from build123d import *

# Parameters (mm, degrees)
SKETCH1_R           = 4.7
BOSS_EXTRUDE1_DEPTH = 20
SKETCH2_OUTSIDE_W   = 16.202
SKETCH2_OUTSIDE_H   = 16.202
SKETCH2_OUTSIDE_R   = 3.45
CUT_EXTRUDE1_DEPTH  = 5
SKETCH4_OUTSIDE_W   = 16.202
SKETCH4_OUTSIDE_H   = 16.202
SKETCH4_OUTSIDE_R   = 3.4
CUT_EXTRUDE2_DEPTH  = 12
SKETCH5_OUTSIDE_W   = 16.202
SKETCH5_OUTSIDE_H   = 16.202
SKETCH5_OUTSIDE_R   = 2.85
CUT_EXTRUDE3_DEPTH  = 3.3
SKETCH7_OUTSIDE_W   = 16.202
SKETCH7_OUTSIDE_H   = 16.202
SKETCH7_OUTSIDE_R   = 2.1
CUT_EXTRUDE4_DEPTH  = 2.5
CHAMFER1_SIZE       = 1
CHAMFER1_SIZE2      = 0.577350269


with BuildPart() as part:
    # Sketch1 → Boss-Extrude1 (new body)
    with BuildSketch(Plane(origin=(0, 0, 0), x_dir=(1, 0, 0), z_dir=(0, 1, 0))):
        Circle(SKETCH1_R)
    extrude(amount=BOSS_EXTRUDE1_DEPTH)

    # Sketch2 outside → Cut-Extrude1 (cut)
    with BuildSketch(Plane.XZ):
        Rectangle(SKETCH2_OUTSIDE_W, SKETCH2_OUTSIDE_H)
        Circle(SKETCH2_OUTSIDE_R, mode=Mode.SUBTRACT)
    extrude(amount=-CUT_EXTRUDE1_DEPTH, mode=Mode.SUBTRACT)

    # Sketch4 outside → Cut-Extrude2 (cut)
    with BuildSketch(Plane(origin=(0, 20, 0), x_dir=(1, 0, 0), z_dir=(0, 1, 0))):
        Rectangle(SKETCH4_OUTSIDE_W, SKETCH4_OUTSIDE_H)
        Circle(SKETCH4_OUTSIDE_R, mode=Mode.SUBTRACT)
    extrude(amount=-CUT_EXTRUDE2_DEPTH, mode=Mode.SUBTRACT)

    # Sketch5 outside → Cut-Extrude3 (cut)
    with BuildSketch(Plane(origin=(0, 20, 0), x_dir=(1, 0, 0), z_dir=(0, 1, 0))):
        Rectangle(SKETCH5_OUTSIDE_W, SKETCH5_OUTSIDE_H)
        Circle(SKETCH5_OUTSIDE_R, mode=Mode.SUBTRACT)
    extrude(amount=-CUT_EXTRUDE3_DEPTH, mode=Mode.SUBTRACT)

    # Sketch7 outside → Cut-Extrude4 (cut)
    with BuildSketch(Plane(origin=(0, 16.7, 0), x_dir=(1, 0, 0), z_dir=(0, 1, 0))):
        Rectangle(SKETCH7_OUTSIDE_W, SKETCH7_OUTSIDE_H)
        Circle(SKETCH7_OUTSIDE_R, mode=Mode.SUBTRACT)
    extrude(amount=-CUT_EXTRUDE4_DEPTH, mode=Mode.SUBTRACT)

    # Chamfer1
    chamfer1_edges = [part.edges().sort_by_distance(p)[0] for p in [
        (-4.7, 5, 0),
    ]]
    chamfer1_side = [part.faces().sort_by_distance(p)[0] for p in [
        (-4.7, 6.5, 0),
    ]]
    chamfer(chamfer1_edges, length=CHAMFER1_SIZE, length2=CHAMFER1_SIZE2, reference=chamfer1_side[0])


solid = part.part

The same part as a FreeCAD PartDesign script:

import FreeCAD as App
import Part
import Sketcher
from FreeCAD import Vector
Q = App.Units.Quantity


def edges_at(feature, points):
    """Names of the edges that pass closest to the given points."""
    edges = feature.Shape.Edges
    near = lambda p: min(range(len(edges)), key=lambda i: edges[i].distToShape(Part.Vertex(*p))[0])
    return sorted({f"Edge{near(p) + 1}" for p in points})

doc = App.newDocument("Part")
body = doc.addObject("PartDesign::Body", "Body")

sketch1 = body.newObject("Sketcher::SketchObject", "Sketch")
sketch1.AttachmentSupport = (doc.getObject("XZ_Plane"), [""])
sketch1.MapMode = "FlatFace"
sketch1.addGeometry(Part.Circle(Vector(0, 0, 0), Vector(0, 0, 1), 4.7), False)
sketch1.addConstraint([
    Sketcher.Constraint("Coincident", 0, 3, -1, 1),
    Sketcher.Constraint("Diameter", 0, Q("9.4 mm")),
])
pad1 = body.newObject("PartDesign::Pad", "Pad")
pad1.Profile = sketch1
pad1.Length = 20
pad1.Reversed = True

sketch2 = body.newObject("Sketcher::SketchObject", "Sketch001")
sketch2.AttachmentSupport = (doc.getObject("XZ_Plane"), [""])
sketch2.MapMode = "FlatFace"
sketch2.addGeometry([
    Part.LineSegment(Vector(-8.1, 8.1, 0), Vector(-8.1, -8.1, 0)),
    Part.LineSegment(Vector(-8.1, -8.1, 0), Vector(8.1, -8.1, 0)),
    Part.LineSegment(Vector(8.1, -8.1, 0), Vector(8.1, 8.1, 0)),
    Part.LineSegment(Vector(8.1, 8.1, 0), Vector(-8.1, 8.1, 0)),
    Part.Circle(Vector(0, 0, 0), Vector(0, 0, 1), 3.5),
], False)
sketch2.addConstraint([
    Sketcher.Constraint("Coincident", 0, 2, 1, 1),
    Sketcher.Constraint("Coincident", 1, 2, 2, 1),
    Sketcher.Constraint("Coincident", 2, 2, 3, 1),
    Sketcher.Constraint("Coincident", 3, 2, 0, 1),
    Sketcher.Constraint("Vertical", 0),
    Sketcher.Constraint("Horizontal", 1),
    Sketcher.Constraint("Vertical", 2),
    Sketcher.Constraint("Horizontal", 3),
    Sketcher.Constraint("Coincident", 4, 3, -1, 1),
    Sketcher.Constraint("Symmetric", 0, 2, 2, 2, -1, 1),
    Sketcher.Constraint("Equal", 3, 0),
    Sketcher.Constraint("Diameter", 4, Q("6.9 mm")),
    Sketcher.Constraint("DistanceX", 1, 1, 1, 2, Q("16.202 mm")),
])
pocket1 = body.newObject("PartDesign::Pocket", "Pocket")
pocket1.Profile = sketch2
pocket1.Length = 5

sketch3 = body.newObject("Sketcher::SketchObject", "Sketch002")
sketch3.AttachmentSupport = (doc.getObject("XZ_Plane"), [""])
sketch3.MapMode = "FlatFace"
sketch3.AttachmentOffset = App.Placement(Vector(0, 0, -20), App.Rotation())
sketch3.addGeometry([
    Part.LineSegment(Vector(-8.1, -8.1, 0), Vector(-8.1, 8.1, 0)),
    Part.LineSegment(Vector(-8.1, 8.1, 0), Vector(8.1, 8.1, 0)),
    Part.LineSegment(Vector(8.1, 8.1, 0), Vector(8.1, -8.1, 0)),
    Part.LineSegment(Vector(8.1, -8.1, 0), Vector(-8.1, -8.1, 0)),
    Part.Circle(Vector(0, 0, 0), Vector(0, 0, 1), 3.4),
], False)
sketch3.addConstraint([
    Sketcher.Constraint("Coincident", 0, 2, 1, 1),
    Sketcher.Constraint("Coincident", 1, 2, 2, 1),
    Sketcher.Constraint("Coincident", 2, 2, 3, 1),
    Sketcher.Constraint("Coincident", 3, 2, 0, 1),
    Sketcher.Constraint("Vertical", 0),
    Sketcher.Constraint("Horizontal", 1),
    Sketcher.Constraint("Vertical", 2),
    Sketcher.Constraint("Horizontal", 3),
    Sketcher.Constraint("Coincident", 4, 3, -1, 1),
    Sketcher.Constraint("Symmetric", 0, 2, 2, 2, -1, 1),
    Sketcher.Constraint("Equal", 3, 0),
    Sketcher.Constraint("Diameter", 4, Q("6.8 mm")),
    Sketcher.Constraint("DistanceX", 1, 1, 1, 2, Q("16.202 mm")),
])
pocket2 = body.newObject("PartDesign::Pocket", "Pocket001")
pocket2.Profile = sketch3
pocket2.Length = 12
pocket2.Reversed = True

sketch4 = body.newObject("Sketcher::SketchObject", "Sketch003")
sketch4.AttachmentSupport = (doc.getObject("XZ_Plane"), [""])
sketch4.MapMode = "FlatFace"
sketch4.AttachmentOffset = App.Placement(Vector(0, 0, -20), App.Rotation())
sketch4.addGeometry([
    Part.LineSegment(Vector(-8.1, -8.1, 0), Vector(-8.1, 8.1, 0)),
    Part.LineSegment(Vector(-8.1, 8.1, 0), Vector(8.1, 8.1, 0)),
    Part.LineSegment(Vector(8.1, 8.1, 0), Vector(8.1, -8.1, 0)),
    Part.LineSegment(Vector(8.1, -8.1, 0), Vector(-8.1, -8.1, 0)),
    Part.Circle(Vector(0, 0, 0), Vector(0, 0, 1), 2.9),
], False)
sketch4.addConstraint([
    Sketcher.Constraint("Coincident", 0, 2, 1, 1),
    Sketcher.Constraint("Coincident", 1, 2, 2, 1),
    Sketcher.Constraint("Coincident", 2, 2, 3, 1),
    Sketcher.Constraint("Coincident", 3, 2, 0, 1),
    Sketcher.Constraint("Vertical", 0),
    Sketcher.Constraint("Horizontal", 1),
    Sketcher.Constraint("Vertical", 2),
    Sketcher.Constraint("Horizontal", 3),
    Sketcher.Constraint("Coincident", 4, 3, -1, 1),
    Sketcher.Constraint("Symmetric", 0, 2, 2, 2, -1, 1),
    Sketcher.Constraint("Equal", 3, 0),
    Sketcher.Constraint("Diameter", 4, Q("5.7 mm")),
    Sketcher.Constraint("DistanceX", 1, 1, 1, 2, Q("16.202 mm")),
])
pocket3 = body.newObject("PartDesign::Pocket", "Pocket002")
pocket3.Profile = sketch4
pocket3.Length = 3.3
pocket3.Reversed = True

sketch5 = body.newObject("Sketcher::SketchObject", "Sketch004")
sketch5.AttachmentSupport = (doc.getObject("XZ_Plane"), [""])
sketch5.MapMode = "FlatFace"
sketch5.AttachmentOffset = App.Placement(Vector(0, 0, -16.7), App.Rotation())
sketch5.addGeometry([
    Part.LineSegment(Vector(-8.1, -8.1, 0), Vector(-8.1, 8.1, 0)),
    Part.LineSegment(Vector(-8.1, 8.1, 0), Vector(8.1, 8.1, 0)),
    Part.LineSegment(Vector(8.1, 8.1, 0), Vector(8.1, -8.1, 0)),
    Part.LineSegment(Vector(8.1, -8.1, 0), Vector(-8.1, -8.1, 0)),
    Part.Circle(Vector(0, 0, 0), Vector(0, 0, 1), 2.1),
], False)
sketch5.addConstraint([
    Sketcher.Constraint("Coincident", 0, 2, 1, 1),
    Sketcher.Constraint("Coincident", 1, 2, 2, 1),
    Sketcher.Constraint("Coincident", 2, 2, 3, 1),
    Sketcher.Constraint("Coincident", 3, 2, 0, 1),
    Sketcher.Constraint("Vertical", 0),
    Sketcher.Constraint("Horizontal", 1),
    Sketcher.Constraint("Vertical", 2),
    Sketcher.Constraint("Horizontal", 3),
    Sketcher.Constraint("Coincident", 4, 3, -1, 1),
    Sketcher.Constraint("Symmetric", 0, 2, 2, 2, -1, 1),
    Sketcher.Constraint("Equal", 3, 0),
    Sketcher.Constraint("Diameter", 4, Q("4.2 mm")),
    Sketcher.Constraint("DistanceX", 1, 1, 1, 2, Q("16.202 mm")),
])
pocket4 = body.newObject("PartDesign::Pocket", "Pocket003")
pocket4.Profile = sketch5
pocket4.Length = 2.5
pocket4.Reversed = True
doc.recompute()

chamfer = body.newObject("PartDesign::Chamfer", "Chamfer")
chamfer.Base = (pocket4, edges_at(pocket4, [(-4.7, 5, 0)]))
chamfer.ChamferType = "Two distances"
chamfer.Size = 1
chamfer.Size2 = 0.57735

doc.recompute()
